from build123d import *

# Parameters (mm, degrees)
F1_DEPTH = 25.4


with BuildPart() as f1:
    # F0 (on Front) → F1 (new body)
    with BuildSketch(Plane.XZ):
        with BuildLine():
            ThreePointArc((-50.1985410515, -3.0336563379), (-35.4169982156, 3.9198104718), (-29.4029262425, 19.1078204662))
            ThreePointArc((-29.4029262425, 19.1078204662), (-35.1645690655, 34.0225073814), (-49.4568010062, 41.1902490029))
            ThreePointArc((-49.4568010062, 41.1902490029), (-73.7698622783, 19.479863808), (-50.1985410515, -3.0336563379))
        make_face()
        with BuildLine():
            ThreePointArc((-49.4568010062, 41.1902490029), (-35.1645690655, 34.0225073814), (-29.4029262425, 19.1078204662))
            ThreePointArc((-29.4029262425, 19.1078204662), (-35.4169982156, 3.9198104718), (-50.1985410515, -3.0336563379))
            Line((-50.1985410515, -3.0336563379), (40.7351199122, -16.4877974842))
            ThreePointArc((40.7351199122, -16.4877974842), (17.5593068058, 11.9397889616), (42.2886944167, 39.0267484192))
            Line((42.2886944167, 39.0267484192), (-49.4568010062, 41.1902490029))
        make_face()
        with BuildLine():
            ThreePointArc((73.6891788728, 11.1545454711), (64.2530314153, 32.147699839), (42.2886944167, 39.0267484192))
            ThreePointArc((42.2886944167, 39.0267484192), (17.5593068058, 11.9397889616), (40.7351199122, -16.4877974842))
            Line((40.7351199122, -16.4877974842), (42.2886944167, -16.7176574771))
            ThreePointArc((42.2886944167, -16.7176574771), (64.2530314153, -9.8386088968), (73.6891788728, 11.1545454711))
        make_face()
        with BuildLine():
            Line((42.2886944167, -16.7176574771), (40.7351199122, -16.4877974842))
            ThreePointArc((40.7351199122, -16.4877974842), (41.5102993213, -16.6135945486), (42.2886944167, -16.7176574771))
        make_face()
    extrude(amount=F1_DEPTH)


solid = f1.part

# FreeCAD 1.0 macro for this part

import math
import FreeCAD as App
import Part
import Sketcher
from FreeCAD import Vector
Q = App.Units.Quantity

doc = App.newDocument("Part")
body = doc.addObject("PartDesign::Body", "Body")

# Sketch on XZ plane
sketch1 = body.newObject("Sketcher::SketchObject", "Sketch")
sketch1.AttachmentSupport = (doc.getObject("XZ_Plane"), [""])
sketch1.MapMode = "FlatFace"
sketch1.addGeometry(Part.ArcOfCircle(Part.Circle(Vector(-51.6, 19.1, 0), Vector(0, 0, 1), 22.2), math.radians(84), math.radians(274)), False)
sketch1.addGeometry(Part.LineSegment(Vector(-50.2, -3, 0), Vector(40.7, -16.5, 0)), False)
sketch1.addGeometry(Part.ArcOfCircle(Part.Circle(Vector(45.6, 11.2, 0), Vector(0, 0, 1), 28.1), math.radians(-100.02), math.radians(-96.81)), False)
sketch1.addGeometry(Part.ArcOfCircle(Part.Circle(Vector(45.6, 11.2, 0), Vector(0, 0, 1), 28.1), math.radians(-97), math.radians(0)), False)
sketch1.addGeometry(Part.ArcOfCircle(Part.Circle(Vector(45.6, 11.2, 0), Vector(0, 0, 1), 28.1), math.radians(0), math.radians(97)), False)
sketch1.addGeometry(Part.LineSegment(Vector(42.3, 39, 0), Vector(-49.5, 41.2, 0)), False)
sketch1.addConstraint(Sketcher.Constraint("Coincident", 0, 2, 1, 1))
sketch1.addConstraint(Sketcher.Constraint("Coincident", 1, 2, 2, 1))
sketch1.addConstraint(Sketcher.Constraint("Tangent", 2, 2, 3, 1))
sketch1.addConstraint(Sketcher.Constraint("Tangent", 3, 2, 4, 1))
sketch1.addConstraint(Sketcher.Constraint("Coincident", 4, 2, 5, 1))
sketch1.addConstraint(Sketcher.Constraint("Coincident", 5, 2, 0, 1))
sketch1.addConstraint(Sketcher.Constraint("Coincident", 4, 3, 2, 3))
sketch1.addConstraint(Sketcher.Constraint("Horizontal", 4, 3, 3, 2))
sketch1.addConstraint(Sketcher.Constraint("Vertical", 2, 2, 4, 2))
sketch1.addConstraint(Sketcher.Constraint("Radius", 2, Q("28.070429 mm")))
sketch1.addConstraint(Sketcher.Constraint("Radius", 0, Q("22.185028 mm")))
sketch1.addConstraint(Sketcher.Constraint("Distance", 5, Q("91.771001 mm")))
sketch1.addConstraint(Sketcher.Constraint("DistanceX", 5, 2, -1, 1, Q("49.456801 mm")))
sketch1.addConstraint(Sketcher.Constraint("DistanceY", 0, 2, 2, 3, Q("14.188202 mm")))
sketch1.addConstraint(Sketcher.Constraint("DistanceY", 2, 2, 0, 2, Q("13.684001 mm")))
sketch1.addConstraint(Sketcher.Constraint("DistanceY", 4, 2, 5, 2, Q("2.163501 mm")))
sketch1.addConstraint(Sketcher.Constraint("Distance", 1, Q("91.92358 mm")))
sketch1.addConstraint(Sketcher.Constraint("DistanceY", -1, 1, 0, 3, Q("19.10782 mm")))
sketch1.addConstraint(Sketcher.Constraint("DistanceX", 0, 2, -1, 1, Q("50.198541 mm")))
pad1 = body.newObject("PartDesign::Pad", "Pad")
pad1.Profile = sketch1
pad1.Length = Q("1 in")

doc.recompute()
